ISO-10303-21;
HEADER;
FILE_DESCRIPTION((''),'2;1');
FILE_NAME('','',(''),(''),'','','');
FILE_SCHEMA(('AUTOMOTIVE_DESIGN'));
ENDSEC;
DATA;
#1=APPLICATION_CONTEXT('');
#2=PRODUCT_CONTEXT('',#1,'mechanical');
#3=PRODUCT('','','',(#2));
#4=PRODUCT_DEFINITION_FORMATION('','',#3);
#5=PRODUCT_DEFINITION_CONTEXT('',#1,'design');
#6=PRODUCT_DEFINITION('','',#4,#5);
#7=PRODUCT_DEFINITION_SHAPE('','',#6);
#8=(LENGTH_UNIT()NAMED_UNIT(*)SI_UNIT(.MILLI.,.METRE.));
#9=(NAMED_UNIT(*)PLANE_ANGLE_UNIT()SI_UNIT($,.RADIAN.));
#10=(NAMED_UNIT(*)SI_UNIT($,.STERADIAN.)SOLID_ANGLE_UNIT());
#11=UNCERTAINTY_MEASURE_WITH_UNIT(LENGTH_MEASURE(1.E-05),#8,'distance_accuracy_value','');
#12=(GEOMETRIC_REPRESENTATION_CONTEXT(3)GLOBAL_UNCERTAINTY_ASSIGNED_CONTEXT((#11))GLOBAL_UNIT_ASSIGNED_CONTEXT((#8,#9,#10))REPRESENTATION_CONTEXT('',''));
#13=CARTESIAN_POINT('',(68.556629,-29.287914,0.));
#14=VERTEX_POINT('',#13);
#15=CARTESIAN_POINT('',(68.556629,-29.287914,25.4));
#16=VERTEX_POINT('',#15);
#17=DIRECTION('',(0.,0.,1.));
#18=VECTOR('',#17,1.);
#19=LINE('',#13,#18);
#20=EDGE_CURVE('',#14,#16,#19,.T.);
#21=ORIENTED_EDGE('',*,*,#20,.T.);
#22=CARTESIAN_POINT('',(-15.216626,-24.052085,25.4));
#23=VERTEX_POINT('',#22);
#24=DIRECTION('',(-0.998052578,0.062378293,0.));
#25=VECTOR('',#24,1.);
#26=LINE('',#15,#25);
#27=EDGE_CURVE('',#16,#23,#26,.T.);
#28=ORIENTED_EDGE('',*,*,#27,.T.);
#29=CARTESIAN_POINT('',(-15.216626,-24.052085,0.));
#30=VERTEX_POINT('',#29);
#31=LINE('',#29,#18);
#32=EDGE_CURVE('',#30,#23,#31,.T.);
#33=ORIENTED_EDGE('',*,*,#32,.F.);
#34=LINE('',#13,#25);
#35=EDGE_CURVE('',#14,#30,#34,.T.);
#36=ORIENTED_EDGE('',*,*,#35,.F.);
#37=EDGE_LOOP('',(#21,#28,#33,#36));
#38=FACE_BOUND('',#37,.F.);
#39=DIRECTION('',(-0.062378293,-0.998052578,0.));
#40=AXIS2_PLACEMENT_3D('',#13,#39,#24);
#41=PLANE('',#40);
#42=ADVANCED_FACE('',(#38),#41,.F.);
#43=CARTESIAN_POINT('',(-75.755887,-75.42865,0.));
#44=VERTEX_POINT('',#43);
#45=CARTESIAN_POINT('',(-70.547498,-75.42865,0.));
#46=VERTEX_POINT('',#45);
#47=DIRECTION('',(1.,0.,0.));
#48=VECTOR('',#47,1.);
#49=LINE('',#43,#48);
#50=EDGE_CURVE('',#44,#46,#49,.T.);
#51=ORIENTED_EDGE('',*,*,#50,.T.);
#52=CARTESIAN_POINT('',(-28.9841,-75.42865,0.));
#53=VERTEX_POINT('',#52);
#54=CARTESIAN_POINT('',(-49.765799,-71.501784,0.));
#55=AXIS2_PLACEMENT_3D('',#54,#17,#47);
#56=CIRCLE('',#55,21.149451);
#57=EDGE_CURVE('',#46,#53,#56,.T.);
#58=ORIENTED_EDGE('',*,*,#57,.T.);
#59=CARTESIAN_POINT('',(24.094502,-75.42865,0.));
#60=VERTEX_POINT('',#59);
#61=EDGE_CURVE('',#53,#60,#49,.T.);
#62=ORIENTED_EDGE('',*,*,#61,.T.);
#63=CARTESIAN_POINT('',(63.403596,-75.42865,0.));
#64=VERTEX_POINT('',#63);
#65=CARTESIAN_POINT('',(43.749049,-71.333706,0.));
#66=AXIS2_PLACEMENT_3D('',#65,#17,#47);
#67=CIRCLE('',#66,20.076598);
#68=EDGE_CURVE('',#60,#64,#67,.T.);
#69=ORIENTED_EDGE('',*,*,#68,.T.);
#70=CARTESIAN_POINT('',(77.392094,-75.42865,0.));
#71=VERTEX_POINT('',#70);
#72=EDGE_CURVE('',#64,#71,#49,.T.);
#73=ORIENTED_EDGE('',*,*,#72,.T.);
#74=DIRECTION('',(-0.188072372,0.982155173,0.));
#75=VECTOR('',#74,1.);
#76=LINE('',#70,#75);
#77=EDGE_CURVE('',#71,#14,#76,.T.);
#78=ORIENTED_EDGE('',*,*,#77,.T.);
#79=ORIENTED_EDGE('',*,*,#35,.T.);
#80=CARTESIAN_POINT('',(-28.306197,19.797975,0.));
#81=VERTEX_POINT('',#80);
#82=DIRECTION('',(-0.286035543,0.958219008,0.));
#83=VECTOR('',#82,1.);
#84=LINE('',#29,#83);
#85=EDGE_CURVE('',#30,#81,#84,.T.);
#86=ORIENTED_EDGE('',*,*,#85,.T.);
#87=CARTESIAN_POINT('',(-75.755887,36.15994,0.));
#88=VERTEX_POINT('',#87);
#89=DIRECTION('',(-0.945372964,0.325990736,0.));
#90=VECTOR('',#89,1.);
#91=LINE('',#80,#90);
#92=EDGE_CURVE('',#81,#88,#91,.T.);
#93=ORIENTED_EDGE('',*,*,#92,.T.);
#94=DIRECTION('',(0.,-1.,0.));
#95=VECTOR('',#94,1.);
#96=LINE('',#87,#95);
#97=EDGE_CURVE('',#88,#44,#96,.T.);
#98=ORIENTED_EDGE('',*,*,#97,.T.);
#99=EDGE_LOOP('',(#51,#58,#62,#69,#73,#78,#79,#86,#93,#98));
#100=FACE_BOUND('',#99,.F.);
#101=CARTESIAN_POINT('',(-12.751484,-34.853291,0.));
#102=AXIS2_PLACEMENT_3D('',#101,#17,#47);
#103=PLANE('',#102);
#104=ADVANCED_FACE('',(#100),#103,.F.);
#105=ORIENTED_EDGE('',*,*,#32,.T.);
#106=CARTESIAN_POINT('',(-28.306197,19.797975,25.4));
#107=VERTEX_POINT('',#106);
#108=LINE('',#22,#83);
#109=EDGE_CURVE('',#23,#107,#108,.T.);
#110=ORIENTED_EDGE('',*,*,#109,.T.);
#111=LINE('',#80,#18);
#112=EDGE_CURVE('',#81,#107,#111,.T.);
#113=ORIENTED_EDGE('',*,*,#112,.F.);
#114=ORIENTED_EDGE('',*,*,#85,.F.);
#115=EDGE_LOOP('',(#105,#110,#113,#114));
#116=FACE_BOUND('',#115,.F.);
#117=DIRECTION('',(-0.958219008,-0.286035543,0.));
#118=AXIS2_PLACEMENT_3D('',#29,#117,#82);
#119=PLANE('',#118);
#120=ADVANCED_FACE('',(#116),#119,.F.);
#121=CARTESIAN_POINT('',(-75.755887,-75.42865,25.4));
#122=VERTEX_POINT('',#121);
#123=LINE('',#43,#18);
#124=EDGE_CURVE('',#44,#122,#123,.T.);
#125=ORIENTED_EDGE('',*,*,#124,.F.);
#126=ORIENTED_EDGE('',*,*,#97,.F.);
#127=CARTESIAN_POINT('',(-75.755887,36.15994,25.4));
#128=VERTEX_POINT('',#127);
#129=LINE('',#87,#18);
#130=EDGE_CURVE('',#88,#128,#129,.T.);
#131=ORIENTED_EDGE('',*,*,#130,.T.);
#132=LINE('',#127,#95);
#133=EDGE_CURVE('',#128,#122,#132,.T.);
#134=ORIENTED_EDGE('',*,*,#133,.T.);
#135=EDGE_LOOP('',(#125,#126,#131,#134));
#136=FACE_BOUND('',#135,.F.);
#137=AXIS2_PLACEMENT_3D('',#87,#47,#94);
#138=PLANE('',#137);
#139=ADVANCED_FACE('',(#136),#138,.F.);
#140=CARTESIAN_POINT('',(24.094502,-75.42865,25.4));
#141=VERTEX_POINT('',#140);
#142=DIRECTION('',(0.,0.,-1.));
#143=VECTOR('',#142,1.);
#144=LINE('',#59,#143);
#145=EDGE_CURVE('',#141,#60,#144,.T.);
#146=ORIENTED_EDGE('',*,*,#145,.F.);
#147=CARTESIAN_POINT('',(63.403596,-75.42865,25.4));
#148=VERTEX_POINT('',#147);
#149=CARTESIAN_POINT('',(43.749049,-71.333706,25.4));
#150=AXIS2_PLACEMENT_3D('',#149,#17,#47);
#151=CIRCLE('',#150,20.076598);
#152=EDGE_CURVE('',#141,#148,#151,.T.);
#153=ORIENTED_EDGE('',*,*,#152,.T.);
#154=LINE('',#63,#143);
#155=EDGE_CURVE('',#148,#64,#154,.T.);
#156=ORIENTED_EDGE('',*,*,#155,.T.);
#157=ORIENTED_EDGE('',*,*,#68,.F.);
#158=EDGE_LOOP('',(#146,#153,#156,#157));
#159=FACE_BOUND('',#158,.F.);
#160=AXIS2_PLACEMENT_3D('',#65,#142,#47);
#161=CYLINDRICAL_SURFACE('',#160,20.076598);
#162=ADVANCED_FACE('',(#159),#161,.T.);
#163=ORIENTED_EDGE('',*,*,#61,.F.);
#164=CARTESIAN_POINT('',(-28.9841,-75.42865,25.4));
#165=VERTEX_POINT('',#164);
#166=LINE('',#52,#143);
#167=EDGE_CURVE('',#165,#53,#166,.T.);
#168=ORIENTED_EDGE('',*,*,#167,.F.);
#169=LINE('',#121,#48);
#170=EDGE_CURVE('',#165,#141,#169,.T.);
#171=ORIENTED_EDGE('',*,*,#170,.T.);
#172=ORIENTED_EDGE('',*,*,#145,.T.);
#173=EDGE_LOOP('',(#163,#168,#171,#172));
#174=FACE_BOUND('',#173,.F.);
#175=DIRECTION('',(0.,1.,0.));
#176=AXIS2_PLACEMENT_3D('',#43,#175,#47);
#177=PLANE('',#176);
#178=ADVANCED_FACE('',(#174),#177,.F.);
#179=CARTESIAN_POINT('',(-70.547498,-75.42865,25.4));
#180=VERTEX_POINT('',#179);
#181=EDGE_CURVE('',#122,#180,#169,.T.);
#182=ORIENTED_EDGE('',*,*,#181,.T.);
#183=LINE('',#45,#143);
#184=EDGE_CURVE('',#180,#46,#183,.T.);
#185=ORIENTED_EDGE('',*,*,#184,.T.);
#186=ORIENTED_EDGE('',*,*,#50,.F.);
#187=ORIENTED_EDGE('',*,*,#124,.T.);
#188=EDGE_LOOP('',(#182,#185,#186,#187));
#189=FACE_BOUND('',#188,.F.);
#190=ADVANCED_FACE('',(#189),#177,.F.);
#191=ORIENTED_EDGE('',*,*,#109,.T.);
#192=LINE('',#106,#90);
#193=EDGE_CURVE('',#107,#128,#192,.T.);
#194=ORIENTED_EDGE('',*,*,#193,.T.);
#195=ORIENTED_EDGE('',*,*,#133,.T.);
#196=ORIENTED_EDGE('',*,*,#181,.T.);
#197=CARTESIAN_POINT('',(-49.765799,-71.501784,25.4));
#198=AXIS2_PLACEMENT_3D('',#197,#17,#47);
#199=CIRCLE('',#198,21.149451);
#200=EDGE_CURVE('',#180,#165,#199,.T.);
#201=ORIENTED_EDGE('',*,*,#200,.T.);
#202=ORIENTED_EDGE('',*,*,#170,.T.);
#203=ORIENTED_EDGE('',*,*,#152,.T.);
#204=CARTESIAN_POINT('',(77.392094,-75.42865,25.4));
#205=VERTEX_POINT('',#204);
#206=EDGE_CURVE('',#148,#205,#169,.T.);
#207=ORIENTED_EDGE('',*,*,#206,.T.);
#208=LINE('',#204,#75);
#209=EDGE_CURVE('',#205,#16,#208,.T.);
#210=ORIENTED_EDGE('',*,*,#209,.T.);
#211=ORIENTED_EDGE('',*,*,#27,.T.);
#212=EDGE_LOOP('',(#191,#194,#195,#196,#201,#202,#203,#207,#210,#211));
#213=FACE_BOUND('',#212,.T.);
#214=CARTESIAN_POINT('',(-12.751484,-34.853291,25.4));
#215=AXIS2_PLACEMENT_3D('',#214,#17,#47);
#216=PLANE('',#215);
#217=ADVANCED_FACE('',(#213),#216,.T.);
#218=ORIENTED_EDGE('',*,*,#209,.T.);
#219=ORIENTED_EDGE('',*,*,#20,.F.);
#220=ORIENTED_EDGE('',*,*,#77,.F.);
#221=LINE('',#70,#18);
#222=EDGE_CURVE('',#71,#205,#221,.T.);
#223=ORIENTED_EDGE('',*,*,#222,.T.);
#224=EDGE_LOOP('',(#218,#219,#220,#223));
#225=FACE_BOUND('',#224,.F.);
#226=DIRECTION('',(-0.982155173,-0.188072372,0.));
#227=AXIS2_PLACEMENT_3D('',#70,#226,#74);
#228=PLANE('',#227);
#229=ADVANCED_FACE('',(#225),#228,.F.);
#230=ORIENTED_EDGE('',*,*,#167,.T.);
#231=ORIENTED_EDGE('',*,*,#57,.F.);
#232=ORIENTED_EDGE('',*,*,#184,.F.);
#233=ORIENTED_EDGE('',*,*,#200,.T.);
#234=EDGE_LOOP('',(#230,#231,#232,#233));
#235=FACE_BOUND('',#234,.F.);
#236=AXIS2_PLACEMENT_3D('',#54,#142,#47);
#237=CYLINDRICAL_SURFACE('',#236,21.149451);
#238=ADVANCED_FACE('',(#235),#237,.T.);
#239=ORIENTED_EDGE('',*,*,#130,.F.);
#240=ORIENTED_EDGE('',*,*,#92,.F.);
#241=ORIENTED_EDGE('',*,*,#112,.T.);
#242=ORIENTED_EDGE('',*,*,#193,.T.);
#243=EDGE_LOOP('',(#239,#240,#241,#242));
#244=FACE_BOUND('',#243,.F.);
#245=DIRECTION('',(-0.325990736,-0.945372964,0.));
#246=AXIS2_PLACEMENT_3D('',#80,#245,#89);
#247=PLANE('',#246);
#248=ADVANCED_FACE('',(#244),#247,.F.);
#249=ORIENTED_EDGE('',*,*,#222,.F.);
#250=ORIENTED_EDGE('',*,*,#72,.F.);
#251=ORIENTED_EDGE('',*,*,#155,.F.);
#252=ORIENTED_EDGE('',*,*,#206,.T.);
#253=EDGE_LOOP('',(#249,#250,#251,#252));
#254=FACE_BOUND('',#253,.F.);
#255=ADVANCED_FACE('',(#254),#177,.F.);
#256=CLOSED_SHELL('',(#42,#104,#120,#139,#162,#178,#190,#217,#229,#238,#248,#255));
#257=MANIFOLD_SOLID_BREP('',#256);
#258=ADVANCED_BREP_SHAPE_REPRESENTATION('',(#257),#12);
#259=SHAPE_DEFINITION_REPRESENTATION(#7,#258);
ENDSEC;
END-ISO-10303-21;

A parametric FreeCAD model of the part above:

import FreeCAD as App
import Part
import Sketcher


def add_polygon(sketch, points):
    """Adds a closed chain of lines whose ends are joined by coincident constraints."""
    first, n = sketch.GeometryCount, len(points)
    for a, b in zip(points, points[1:] + points[:1]):
        sketch.addGeometry(Part.LineSegment(App.Vector(*a, 0), App.Vector(*b, 0)), False)
    for i in range(n):
        sketch.addConstraint(Sketcher.Constraint("Coincident", first + i, 2, first + (i + 1) % n, 1))

doc = App.newDocument("Part")
params = doc.addObject("Spreadsheet::Sheet", "Params")
for row, (alias, value) in enumerate([
    ("pad1_length", "1 in"),
    ("pad2_length", "1 in"),
], start=1):
    params.set(f"A{row}", alias)
    params.set(f"B{row}", "=" + value)
    params.setAlias(f"B{row}", alias)

body = doc.addObject("PartDesign::Body", "Body")

# Sketch on XY plane
sketch1 = body.newObject("Sketcher::SketchObject", "Sketch")
sketch1.AttachmentSupport = (doc.getObject("XY_Plane"), [""])
sketch1.MapMode = "FlatFace"
add_polygon(sketch1, [(-76, 36), (-76, -75), (77, -75), (69, -29), (-15, -24), (-28, 20)])  # lines 0-5
sketch1.addConstraint([
    Sketcher.Constraint("Vertical", 0),
    Sketcher.Constraint("Horizontal", 1),
    Sketcher.Constraint("DistanceX", 1, 1, 1, 2, 153.147981),
    Sketcher.Constraint("DistanceY", 0, 2, 0, 1, 111.58859),
    Sketcher.Constraint("Distance", 2, 46.979069),
    Sketcher.Constraint("DistanceY", 0, 2, -1, 1, 75.42865),
    Sketcher.Constraint("DistanceX", -1, 1, 2, 2, 68.556629),
    Sketcher.Constraint("DistanceX", 0, 2, 3, 2, 60.539261),
    Sketcher.Constraint("DistanceY", 2, 2, 3, 2, 5.235829),
    Sketcher.Constraint("DistanceX", 4, 2, 3, 2, 13.089571),
    Sketcher.Constraint("DistanceY", 3, 2, 4, 2, 43.85006),
    Sketcher.Constraint("Distance", 3, 83.936715),
])
pad1 = body.newObject("PartDesign::Pad", "Pad")
pad1.Profile = sketch1
pad1.setExpression("Length", "Params.pad1_length")

# Sketch on XY plane
sketch2 = body.newObject("Sketcher::SketchObject", "Sketch001")
sketch2.AttachmentSupport = (doc.getObject("XY_Plane"), [""])
sketch2.MapMode = "FlatFace"
sketch2.addGeometry([
    Part.Circle(App.Vector(-50, -72, 0), App.Vector(0, 0, 1), 21),
    Part.Circle(App.Vector(44, -71, 0), App.Vector(0, 0, 1), 20),
], False)
sketch2.addConstraint([
    Sketcher.Constraint("Diameter", 0, 42.298902),
    Sketcher.Constraint("Diameter", 1, 40.153196),
    Sketcher.Constraint("DistanceX", 0, 3, -1, 1, 49.765799),
    Sketcher.Constraint("DistanceX", -1, 1, 1, 3, 43.749049),
    Sketcher.Constraint("DistanceY", 0, 3, -1, 1, 71.501784),
    Sketcher.Constraint("DistanceY", 1, 3, -1, 1, 71.333706),
])
pad2 = body.newObject("PartDesign::Pad", "Pad001")
pad2.Profile = sketch2
pad2.setExpression("Length", "Params.pad2_length")

doc.recompute()
